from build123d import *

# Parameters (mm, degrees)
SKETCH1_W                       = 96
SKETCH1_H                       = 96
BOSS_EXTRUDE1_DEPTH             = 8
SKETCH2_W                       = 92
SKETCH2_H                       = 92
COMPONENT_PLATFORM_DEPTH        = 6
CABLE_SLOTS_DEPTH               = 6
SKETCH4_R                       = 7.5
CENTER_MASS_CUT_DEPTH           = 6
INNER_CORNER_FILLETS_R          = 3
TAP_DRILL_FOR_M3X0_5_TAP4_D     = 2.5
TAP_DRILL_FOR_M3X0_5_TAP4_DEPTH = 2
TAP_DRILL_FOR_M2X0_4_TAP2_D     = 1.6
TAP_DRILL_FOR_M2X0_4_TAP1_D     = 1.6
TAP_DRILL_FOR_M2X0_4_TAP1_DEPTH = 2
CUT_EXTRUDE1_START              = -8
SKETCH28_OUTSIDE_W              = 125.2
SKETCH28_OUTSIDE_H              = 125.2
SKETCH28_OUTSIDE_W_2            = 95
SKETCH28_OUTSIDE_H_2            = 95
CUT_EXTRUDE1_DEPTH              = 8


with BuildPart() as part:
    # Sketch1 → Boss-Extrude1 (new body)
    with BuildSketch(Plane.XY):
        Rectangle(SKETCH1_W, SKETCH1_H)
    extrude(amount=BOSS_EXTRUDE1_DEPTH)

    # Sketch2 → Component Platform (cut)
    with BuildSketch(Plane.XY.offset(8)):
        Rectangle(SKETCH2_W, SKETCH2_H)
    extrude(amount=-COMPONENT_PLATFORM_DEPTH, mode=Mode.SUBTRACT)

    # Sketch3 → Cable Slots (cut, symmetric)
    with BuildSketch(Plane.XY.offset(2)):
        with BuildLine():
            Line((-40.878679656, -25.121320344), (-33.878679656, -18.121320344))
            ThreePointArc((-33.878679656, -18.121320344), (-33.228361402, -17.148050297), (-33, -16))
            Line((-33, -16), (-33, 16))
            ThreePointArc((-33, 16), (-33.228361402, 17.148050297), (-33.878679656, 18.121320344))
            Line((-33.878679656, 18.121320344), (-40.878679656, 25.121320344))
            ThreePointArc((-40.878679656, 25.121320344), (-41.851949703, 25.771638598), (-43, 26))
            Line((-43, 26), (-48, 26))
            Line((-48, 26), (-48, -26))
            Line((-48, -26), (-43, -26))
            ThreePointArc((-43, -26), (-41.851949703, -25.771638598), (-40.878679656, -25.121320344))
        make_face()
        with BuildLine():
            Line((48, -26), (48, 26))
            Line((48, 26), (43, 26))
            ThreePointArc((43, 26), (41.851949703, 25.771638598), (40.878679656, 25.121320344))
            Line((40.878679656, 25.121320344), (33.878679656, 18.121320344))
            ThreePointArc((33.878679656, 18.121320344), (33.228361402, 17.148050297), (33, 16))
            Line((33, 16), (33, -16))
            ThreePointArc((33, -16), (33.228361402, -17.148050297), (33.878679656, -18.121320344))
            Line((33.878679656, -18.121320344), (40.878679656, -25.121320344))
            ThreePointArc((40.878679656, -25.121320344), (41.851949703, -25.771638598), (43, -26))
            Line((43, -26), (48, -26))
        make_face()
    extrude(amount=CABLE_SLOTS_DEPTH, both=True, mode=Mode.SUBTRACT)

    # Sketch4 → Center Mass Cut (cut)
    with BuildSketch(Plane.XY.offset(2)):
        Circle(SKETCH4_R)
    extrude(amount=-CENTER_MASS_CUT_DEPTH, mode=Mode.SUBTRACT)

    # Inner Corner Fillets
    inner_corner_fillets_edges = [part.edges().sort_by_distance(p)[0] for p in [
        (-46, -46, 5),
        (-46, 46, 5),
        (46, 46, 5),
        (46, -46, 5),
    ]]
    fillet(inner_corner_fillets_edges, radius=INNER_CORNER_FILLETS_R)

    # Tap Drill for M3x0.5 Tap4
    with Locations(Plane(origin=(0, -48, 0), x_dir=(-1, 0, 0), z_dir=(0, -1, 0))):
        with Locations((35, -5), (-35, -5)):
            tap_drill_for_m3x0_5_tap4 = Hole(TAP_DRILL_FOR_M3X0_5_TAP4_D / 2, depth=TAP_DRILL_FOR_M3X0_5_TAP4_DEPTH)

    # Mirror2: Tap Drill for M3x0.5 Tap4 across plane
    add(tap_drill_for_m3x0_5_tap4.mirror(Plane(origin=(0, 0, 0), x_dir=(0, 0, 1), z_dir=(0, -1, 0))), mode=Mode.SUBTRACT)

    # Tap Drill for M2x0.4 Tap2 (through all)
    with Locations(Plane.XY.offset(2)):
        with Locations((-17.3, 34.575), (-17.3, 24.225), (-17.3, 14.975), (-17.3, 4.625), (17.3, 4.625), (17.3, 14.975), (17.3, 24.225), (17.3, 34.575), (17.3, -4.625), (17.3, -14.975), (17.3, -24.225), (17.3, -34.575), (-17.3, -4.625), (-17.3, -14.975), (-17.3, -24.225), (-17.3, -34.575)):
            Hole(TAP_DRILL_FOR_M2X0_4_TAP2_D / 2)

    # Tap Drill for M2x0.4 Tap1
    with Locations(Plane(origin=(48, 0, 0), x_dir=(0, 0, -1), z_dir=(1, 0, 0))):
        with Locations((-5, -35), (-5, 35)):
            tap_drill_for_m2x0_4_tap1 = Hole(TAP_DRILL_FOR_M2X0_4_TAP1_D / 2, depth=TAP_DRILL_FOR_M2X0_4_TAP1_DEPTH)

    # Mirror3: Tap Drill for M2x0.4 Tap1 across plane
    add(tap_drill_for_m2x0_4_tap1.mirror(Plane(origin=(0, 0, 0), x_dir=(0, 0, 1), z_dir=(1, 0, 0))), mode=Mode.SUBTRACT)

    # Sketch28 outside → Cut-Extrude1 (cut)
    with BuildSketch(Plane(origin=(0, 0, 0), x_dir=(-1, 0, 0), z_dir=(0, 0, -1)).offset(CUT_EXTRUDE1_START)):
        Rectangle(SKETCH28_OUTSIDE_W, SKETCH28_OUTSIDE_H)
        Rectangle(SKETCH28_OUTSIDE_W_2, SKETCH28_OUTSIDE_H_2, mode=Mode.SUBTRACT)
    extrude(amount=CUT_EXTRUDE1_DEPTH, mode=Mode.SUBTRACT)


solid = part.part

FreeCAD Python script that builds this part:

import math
import FreeCAD as App
import Part
import Sketcher


def edges_at(feature, points):
    """Names of the edges that pass closest to the given points."""
    edges = feature.Shape.Edges
    near = lambda p: min(range(len(edges)), key=lambda i: edges[i].distToShape(Part.Vertex(*p))[0])
    return sorted({f"Edge{near(p) + 1}" for p in points})

doc = App.newDocument("Part")
params = doc.addObject("Spreadsheet::Sheet", "Params")
for row, (alias, value) in enumerate([
    ("sketch1_width", "96 mm"),
    ("pad1_length", "8 mm"),
    ("sketch2_width", "92 mm"),
    ("pocket1_length", "6 mm"),
    ("sketch3_radius", "3 mm"),
    ("sketch3_width", "5 mm"),
    ("sketch3_height", "32 mm"),
    ("sketch3_height2", "52 mm"),
    ("pocket2_length", "12 mm"),
    ("sketch4_diameter", "15 mm"),
    ("pocket3_length", "6 mm"),
    ("fillet_radius", "3 mm"),
    ("sketch5_diameter", "2.5 mm"),
    ("hole_diameter", "2.5 mm"),
    ("hole_depth", "2 mm"),
    ("sketch6_diameter", "1.6 mm"),
    ("hole2_diameter", "1.6 mm"),
    ("sketch7_diameter", "1.6 mm"),
    ("hole3_diameter", "1.6 mm"),
    ("hole3_depth", "2 mm"),
    ("sketch8_width", "95 mm"),
    ("sketch8_width2", "125.2 mm"),
    ("pocket4_length", "8 mm"),
], start=1):
    params.set(f"A{row}", alias)
    params.set(f"B{row}", "=" + value)
    params.setAlias(f"B{row}", alias)

body = doc.addObject("PartDesign::Body", "Body")

sketch1 = body.newObject("Sketcher::SketchObject", "Sketch")
sketch1.AttachmentSupport = (doc.getObject("XY_Plane"), [""])
sketch1.MapMode = "FlatFace"
sketch1.addGeometry([
    Part.LineSegment(App.Vector(-48, 48, 0), App.Vector(-48, -48, 0)),
    Part.LineSegment(App.Vector(-48, -48, 0), App.Vector(48, -48, 0)),
    Part.LineSegment(App.Vector(48, -48, 0), App.Vector(48, 48, 0)),
    Part.LineSegment(App.Vector(48, 48, 0), App.Vector(-48, 48, 0)),
], False)
sketch1.addConstraint([
    Sketcher.Constraint("Coincident", 0, 2, 1, 1),
    Sketcher.Constraint("Coincident", 1, 2, 2, 1),
    Sketcher.Constraint("Coincident", 2, 2, 3, 1),
    Sketcher.Constraint("Coincident", 3, 2, 0, 1),
    Sketcher.Constraint("Vertical", 0),
    Sketcher.Constraint("Horizontal", 1),
    Sketcher.Constraint("Vertical", 2),
    Sketcher.Constraint("Horizontal", 3),
    Sketcher.Constraint("Symmetric", 0, 2, 2, 2, -1, 1),
    Sketcher.Constraint("Equal", 3, 0),
    Sketcher.Constraint("DistanceX", 1, 1, 1, 2, 96.0),
])
sketch1.setExpression("Constraints[10]", "Params.sketch1_width")
pad1 = body.newObject("PartDesign::Pad", "Pad")
pad1.Profile = sketch1
pad1.setExpression("Length", "Params.pad1_length")

sketch2 = body.newObject("Sketcher::SketchObject", "Sketch001")
sketch2.AttachmentSupport = (doc.getObject("XY_Plane"), [""])
sketch2.MapMode = "FlatFace"
sketch2.AttachmentOffset = App.Placement(App.Vector(0, 0, 8), App.Rotation())
sketch2.addGeometry([
    Part.LineSegment(App.Vector(-46, 46, 0), App.Vector(-46, -46, 0)),
    Part.LineSegment(App.Vector(-46, -46, 0), App.Vector(46, -46, 0)),
    Part.LineSegment(App.Vector(46, -46, 0), App.Vector(46, 46, 0)),
    Part.LineSegment(App.Vector(46, 46, 0), App.Vector(-46, 46, 0)),
], False)
sketch2.addConstraint([
    Sketcher.Constraint("Coincident", 0, 2, 1, 1),
    Sketcher.Constraint("Coincident", 1, 2, 2, 1),
    Sketcher.Constraint("Coincident", 2, 2, 3, 1),
    Sketcher.Constraint("Coincident", 3, 2, 0, 1),
    Sketcher.Constraint("Vertical", 0),
    Sketcher.Constraint("Horizontal", 1),
    Sketcher.Constraint("Vertical", 2),
    Sketcher.Constraint("Horizontal", 3),
    Sketcher.Constraint("Symmetric", 0, 2, 2, 2, -1, 1),
    Sketcher.Constraint("Equal", 3, 0),
    Sketcher.Constraint("DistanceX", 1, 1, 1, 2, 92.0),
])
sketch2.setExpression("Constraints[10]", "Params.sketch2_width")
pocket1 = body.newObject("PartDesign::Pocket", "Pocket")
pocket1.Profile = sketch2
pocket1.setExpression("Length", "Params.pocket1_length")

sketch3 = body.newObject("Sketcher::SketchObject", "Sketch002")
sketch3.AttachmentSupport = (doc.getObject("XY_Plane"), [""])
sketch3.MapMode = "FlatFace"
sketch3.AttachmentOffset = App.Placement(App.Vector(0, 0, 2), App.Rotation())
sketch3.addGeometry([
    Part.LineSegment(App.Vector(-40.9, -25.1, 0), App.Vector(-33.9, -18.1, 0)),
    Part.ArcOfCircle(Part.Circle(App.Vector(-36, -16, 0), App.Vector(0, 0, 1), 3), math.radians(-45), math.radians(0)),
    Part.LineSegment(App.Vector(-33, -16, 0), App.Vector(-33, 16, 0)),
    Part.ArcOfCircle(Part.Circle(App.Vector(-36, 16, 0), App.Vector(0, 0, 1), 3), math.radians(0), math.radians(45)),
    Part.LineSegment(App.Vector(-33.9, 18.1, 0), App.Vector(-40.9, 25.1, 0)),
    Part.ArcOfCircle(Part.Circle(App.Vector(-43, 23, 0), App.Vector(0, 0, 1), 3), math.radians(45), math.radians(90)),
    Part.LineSegment(App.Vector(-43, 26, 0), App.Vector(-48, 26, 0)),
    Part.LineSegment(App.Vector(-48, 26, 0), App.Vector(-48, -26, 0)),
    Part.LineSegment(App.Vector(-48, -26, 0), App.Vector(-43, -26, 0)),
    Part.ArcOfCircle(Part.Circle(App.Vector(-43, -23, 0), App.Vector(0, 0, 1), 3), math.radians(-90), math.radians(-45)),
    Part.LineSegment(App.Vector(48, -26, 0), App.Vector(48, 26, 0)),
    Part.LineSegment(App.Vector(48, 26, 0), App.Vector(43, 26, 0)),
    Part.ArcOfCircle(Part.Circle(App.Vector(43, 23, 0), App.Vector(0, 0, 1), 3), math.radians(90), math.radians(135)),
    Part.LineSegment(App.Vector(40.9, 25.1, 0), App.Vector(33.9, 18.1, 0)),
    Part.ArcOfCircle(Part.Circle(App.Vector(36, 16, 0), App.Vector(0, 0, 1), 3), math.radians(135), math.radians(180)),
    Part.LineSegment(App.Vector(33, 16, 0), App.Vector(33, -16, 0)),
    Part.ArcOfCircle(Part.Circle(App.Vector(36, -16, 0), App.Vector(0, 0, 1), 3), math.radians(180), math.radians(225)),
    Part.LineSegment(App.Vector(33.9, -18.1, 0), App.Vector(40.9, -25.1, 0)),
    Part.ArcOfCircle(Part.Circle(App.Vector(43, -23, 0), App.Vector(0, 0, 1), 3), math.radians(-135), math.radians(-90)),
    Part.LineSegment(App.Vector(43, -26, 0), App.Vector(48, -26, 0)),
], False)
sketch3.addConstraint([
    Sketcher.Constraint("Tangent", 0, 2, 1, 1),
    Sketcher.Constraint("Tangent", 1, 2, 2, 1),
    Sketcher.Constraint("Tangent", 2, 2, 3, 1),
    Sketcher.Constraint("Tangent", 3, 2, 4, 1),
    Sketcher.Constraint("Tangent", 4, 2, 5, 1),
    Sketcher.Constraint("Tangent", 5, 2, 6, 1),
    Sketcher.Constraint("Coincident", 6, 2, 7, 1),
    Sketcher.Constraint("Coincident", 7, 2, 8, 1),
    Sketcher.Constraint("Tangent", 8, 2, 9, 1),
    Sketcher.Constraint("Tangent", 9, 2, 0, 1),
    Sketcher.Constraint("Coincident", 10, 2, 11, 1),
    Sketcher.Constraint("Tangent", 11, 2, 12, 1),
    Sketcher.Constraint("Tangent", 12, 2, 13, 1),
    Sketcher.Constraint("Tangent", 13, 2, 14, 1),
    Sketcher.Constraint("Tangent", 14, 2, 15, 1),
    Sketcher.Constraint("Tangent", 15, 2, 16, 1),
    Sketcher.Constraint("Tangent", 16, 2, 17, 1),
    Sketcher.Constraint("Tangent", 17, 2, 18, 1),
    Sketcher.Constraint("Tangent", 18, 2, 19, 1),
    Sketcher.Constraint("Coincident", 19, 2, 10, 1),
    Sketcher.Constraint("Vertical", 2),
    Sketcher.Constraint("Horizontal", 6),
    Sketcher.Constraint("Vertical", 7),
    Sketcher.Constraint("Horizontal", 8),
    Sketcher.Constraint("Vertical", 10),
    Sketcher.Constraint("Horizontal", 11),
    Sketcher.Constraint("Vertical", 15),
    Sketcher.Constraint("Horizontal", 19),
    Sketcher.Constraint("Equal", 1, 3),
    Sketcher.Constraint("Equal", 3, 5),
    Sketcher.Constraint("Equal", 5, 9),
    Sketcher.Constraint("Equal", 9, 12),
    Sketcher.Constraint("Equal", 12, 14),
    Sketcher.Constraint("Equal", 14, 16),
    Sketcher.Constraint("Equal", 16, 18),
    Sketcher.Constraint("Symmetric", 9, 3, 12, 3, -1, 1),
    Sketcher.Constraint("Symmetric", 1, 3, 14, 3, -1, 1),
    Sketcher.Constraint("Symmetric", 5, 3, 18, 3, -1, 1),
    Sketcher.Constraint("Symmetric", 5, 3, 12, 3, -2),
    Sketcher.Constraint("Perpendicular", 0, 4),
    Sketcher.Constraint("Perpendicular", 13, 17),
    Sketcher.Constraint("Horizontal", 3, 3, 14, 3),
    Sketcher.Constraint("Equal", 8, 11),
    Sketcher.Constraint("Radius", 1, 3.0),
    Sketcher.Constraint("DistanceX", 6, 2, 6, 1, 5.0),
    Sketcher.Constraint("DistanceY", 2, 1, 2, 2, 32.0),
    Sketcher.Constraint("DistanceY", 7, 2, 7, 1, 52.0),
    Sketcher.Constraint("DistanceX", 1, 3, -1, 1, 36.0),
])
sketch3.setExpression("Constraints[43]", "Params.sketch3_radius")
sketch3.setExpression("Constraints[44]", "Params.sketch3_width")
sketch3.setExpression("Constraints[45]", "Params.sketch3_height")
sketch3.setExpression("Constraints[46]", "Params.sketch3_height2")
pocket2 = body.newObject("PartDesign::Pocket", "Pocket001")
pocket2.Profile = sketch3
pocket2.setExpression("Length", "Params.pocket2_length")
pocket2.Midplane = True

sketch4 = body.newObject("Sketcher::SketchObject", "Sketch003")
sketch4.AttachmentSupport = (doc.getObject("XY_Plane"), [""])
sketch4.MapMode = "FlatFace"
sketch4.AttachmentOffset = App.Placement(App.Vector(0, 0, 2), App.Rotation())
sketch4.addGeometry(Part.Circle(App.Vector(0, 0, 0), App.Vector(0, 0, 1), 8), False)
sketch4.addConstraint([
    Sketcher.Constraint("Coincident", 0, 3, -1, 1),
    Sketcher.Constraint("Diameter", 0, 15.0),
])
sketch4.setExpression("Constraints[1]", "Params.sketch4_diameter")
pocket3 = body.newObject("PartDesign::Pocket", "Pocket002")
pocket3.Profile = sketch4
pocket3.setExpression("Length", "Params.pocket3_length")
doc.recompute()

fillet = body.newObject("PartDesign::Fillet", "Fillet")
fillet.Base = (pocket3, edges_at(pocket3, [
    (-46, -46, 5),
    (-46, 46, 5),
    (46, 46, 5),
    (46, -46, 5),
]))
fillet.setExpression("Radius", "Params.fillet_radius")

sketch5 = body.newObject("Sketcher::SketchObject", "Sketch004")
sketch5.AttachmentSupport = (doc.getObject("XZ_Plane"), [""])
sketch5.MapMode = "FlatFace"
sketch5.AttachmentOffset = App.Placement(App.Vector(0, 0, 48), App.Rotation())
sketch5.addGeometry([
    Part.Circle(App.Vector(-35, 5, 0), App.Vector(0, 0, 1), 1.2),
    Part.Circle(App.Vector(35, 5, 0), App.Vector(0, 0, 1), 1.2),
], False)
sketch5.addConstraint([
    Sketcher.Constraint("Equal", 0, 1),
    Sketcher.Constraint("Symmetric", 0, 3, 1, 3, -2),
    Sketcher.Constraint("Diameter", 0, 2.5),
    Sketcher.Constraint("DistanceX", 0, 3, -1, 1, 35.0),
    Sketcher.Constraint("DistanceY", -1, 1, 0, 3, 5.0),
])
sketch5.setExpression("Constraints[2]", "Params.sketch5_diameter")
doc.recompute()
hole = body.newObject("PartDesign::Hole", "Hole")
hole.Profile = sketch5
hole.ThreadType = "None"
hole.setExpression("Diameter", "Params.hole_diameter")
hole.DepthType = "Dimension"
hole.setExpression("Depth", "Params.hole_depth")
hole.DrillPoint = "Flat"
doc.recompute()

mirrored = body.newObject("PartDesign::Mirrored", "Mirrored")
mirrored.Originals = [hole]
mirrored.MirrorPlane = (doc.getObject("XZ_Plane"), [""])
body.Tip = mirrored

sketch6 = body.newObject("Sketcher::SketchObject", "Sketch005")
sketch6.AttachmentSupport = (doc.getObject("XY_Plane"), [""])
sketch6.MapMode = "FlatFace"
sketch6.AttachmentOffset = App.Placement(App.Vector(0, 0, 2), App.Rotation())
sketch6.addGeometry([
    Part.Circle(App.Vector(-17.3, 34.6, 0), App.Vector(0, 0, 1), 0.8),
    Part.Circle(App.Vector(-17.3, 24.2, 0), App.Vector(0, 0, 1), 0.8),
    Part.Circle(App.Vector(-17.3, 15, 0), App.Vector(0, 0, 1), 0.8),
    Part.Circle(App.Vector(-17.3, 4.6, 0), App.Vector(0, 0, 1), 0.8),
    Part.Circle(App.Vector(17.3, 4.6, 0), App.Vector(0, 0, 1), 0.8),
    Part.Circle(App.Vector(17.3, 15, 0), App.Vector(0, 0, 1), 0.8),
    Part.Circle(App.Vector(17.3, 24.2, 0), App.Vector(0, 0, 1), 0.8),
    Part.Circle(App.Vector(17.3, 34.6, 0), App.Vector(0, 0, 1), 0.8),
    Part.Circle(App.Vector(17.3, -4.6, 0), App.Vector(0, 0, 1), 0.8),
    Part.Circle(App.Vector(17.3, -15, 0), App.Vector(0, 0, 1), 0.8),
    Part.Circle(App.Vector(17.3, -24.2, 0), App.Vector(0, 0, 1), 0.8),
    Part.Circle(App.Vector(17.3, -34.6, 0), App.Vector(0, 0, 1), 0.8),
    Part.Circle(App.Vector(-17.3, -4.6, 0), App.Vector(0, 0, 1), 0.8),
    Part.Circle(App.Vector(-17.3, -15, 0), App.Vector(0, 0, 1), 0.8),
    Part.Circle(App.Vector(-17.3, -24.2, 0), App.Vector(0, 0, 1), 0.8),
    Part.Circle(App.Vector(-17.3, -34.6, 0), App.Vector(0, 0, 1), 0.8),
], False)
sketch6.addConstraint([
    Sketcher.Constraint("Equal", 0, 1),
    Sketcher.Constraint("Equal", 1, 2),
    Sketcher.Constraint("Equal", 2, 3),
    Sketcher.Constraint("Equal", 3, 4),
    Sketcher.Constraint("Equal", 4, 5),
    Sketcher.Constraint("Equal", 5, 6),
    Sketcher.Constraint("Equal", 6, 7),
    Sketcher.Constraint("Equal", 7, 8),
    Sketcher.Constraint("Equal", 8, 9),
    Sketcher.Constraint("Equal", 9, 10),
    Sketcher.Constraint("Equal", 10, 11),
    Sketcher.Constraint("Equal", 11, 12),
    Sketcher.Constraint("Equal", 12, 13),
    Sketcher.Constraint("Equal", 13, 14),
    Sketcher.Constraint("Equal", 14, 15),
    Sketcher.Constraint("Symmetric", 3, 3, 8, 3, -1, 1),
    Sketcher.Constraint("Symmetric", 2, 3, 9, 3, -1, 1),
    Sketcher.Constraint("Symmetric", 1, 3, 10, 3, -1, 1),
    Sketcher.Constraint("Symmetric", 0, 3, 11, 3, -1, 1),
    Sketcher.Constraint("Symmetric", 4, 3, 12, 3, -1, 1),
    Sketcher.Constraint("Symmetric", 5, 3, 13, 3, -1, 1),
    Sketcher.Constraint("Symmetric", 6, 3, 14, 3, -1, 1),
    Sketcher.Constraint("Symmetric", 7, 3, 15, 3, -1, 1),
    Sketcher.Constraint("Symmetric", 3, 3, 4, 3, -2),
    Sketcher.Constraint("Symmetric", 2, 3, 5, 3, -2),
    Sketcher.Constraint("Symmetric", 1, 3, 6, 3, -2),
    Sketcher.Constraint("Symmetric", 0, 3, 7, 3, -2),
    Sketcher.Constraint("Vertical", 0, 3, 1, 3),
    Sketcher.Constraint("Vertical", 1, 3, 2, 3),
    Sketcher.Constraint("Vertical", 2, 3, 3, 3),
    Sketcher.Constraint("Diameter", 0, 1.6),
    Sketcher.Constraint("DistanceX", 0, 3, -1, 1, 17.3),
    Sketcher.Constraint("DistanceY", 2, 3, 0, 3, 19.6),
    Sketcher.Constraint("DistanceY", 3, 3, 1, 3, 19.6),
    Sketcher.Constraint("DistanceY", 8, 3, 5, 3, 19.6),
    Sketcher.Constraint("DistanceY", 1, 3, 0, 3, 10.35),
])
sketch6.setExpression("Constraints[30]", "Params.sketch6_diameter")
doc.recompute()
hole2 = body.newObject("PartDesign::Hole", "Hole001")
hole2.Profile = sketch6
hole2.ThreadType = "None"
hole2.setExpression("Diameter", "Params.hole2_diameter")
hole2.DepthType = "ThroughAll"

sketch7 = body.newObject("Sketcher::SketchObject", "Sketch006")
sketch7.AttachmentSupport = (doc.getObject("YZ_Plane"), [""])
sketch7.MapMode = "FlatFace"
sketch7.AttachmentOffset = App.Placement(App.Vector(0, 0, 48), App.Rotation())
sketch7.addGeometry([
    Part.Circle(App.Vector(-35, 5, 0), App.Vector(0, 0, 1), 0.8),
    Part.Circle(App.Vector(35, 5, 0), App.Vector(0, 0, 1), 0.8),
], False)
sketch7.addConstraint([
    Sketcher.Constraint("Equal", 0, 1),
    Sketcher.Constraint("Symmetric", 0, 3, 1, 3, -2),
    Sketcher.Constraint("Diameter", 0, 1.6),
    Sketcher.Constraint("DistanceX", 0, 3, -1, 1, 35.0),
    Sketcher.Constraint("DistanceY", -1, 1, 0, 3, 5.0),
])
sketch7.setExpression("Constraints[2]", "Params.sketch7_diameter")
doc.recompute()
hole3 = body.newObject("PartDesign::Hole", "Hole002")
hole3.Profile = sketch7
hole3.ThreadType = "None"
hole3.setExpression("Diameter", "Params.hole3_diameter")
hole3.DepthType = "Dimension"
hole3.setExpression("Depth", "Params.hole3_depth")
hole3.DrillPoint = "Flat"
doc.recompute()

mirrored2 = body.newObject("PartDesign::Mirrored", "Mirrored001")
mirrored2.Originals = [hole3]
mirrored2.MirrorPlane = (doc.getObject("YZ_Plane"), [""])
body.Tip = mirrored2

sketch8 = body.newObject("Sketcher::SketchObject", "Sketch007")
sketch8.AttachmentSupport = (doc.getObject("XY_Plane"), [""])
sketch8.MapMode = "FlatFace"
sketch8.AttachmentOffset = App.Placement(App.Vector(0, 0, 8), App.Rotation())
sketch8.addGeometry([
    Part.LineSegment(App.Vector(63, 63, 0), App.Vector(63, -63, 0)),
    Part.LineSegment(App.Vector(63, -63, 0), App.Vector(-63, -63, 0)),
    Part.LineSegment(App.Vector(-63, -63, 0), App.Vector(-63, 63, 0)),
    Part.LineSegment(App.Vector(-63, 63, 0), App.Vector(63, 63, 0)),
    Part.LineSegment(App.Vector(-48, -48, 0), App.Vector(48, -48, 0)),
    Part.LineSegment(App.Vector(48, -48, 0), App.Vector(48, 48, 0)),
    Part.LineSegment(App.Vector(48, 48, 0), App.Vector(-48, 48, 0)),
    Part.LineSegment(App.Vector(-48, 48, 0), App.Vector(-48, -48, 0)),
], False)
sketch8.addConstraint([
    Sketcher.Constraint("Coincident", 0, 2, 1, 1),
    Sketcher.Constraint("Coincident", 1, 2, 2, 1),
    Sketcher.Constraint("Coincident", 2, 2, 3, 1),
    Sketcher.Constraint("Coincident", 3, 2, 0, 1),
    Sketcher.Constraint("Coincident", 4, 2, 5, 1),
    Sketcher.Constraint("Coincident", 5, 2, 6, 1),
    Sketcher.Constraint("Coincident", 6, 2, 7, 1),
    Sketcher.Constraint("Coincident", 7, 2, 4, 1),
    Sketcher.Constraint("Vertical", 0),
    Sketcher.Constraint("Horizontal", 1),
    Sketcher.Constraint("Vertical", 2),
    Sketcher.Constraint("Horizontal", 3),
    Sketcher.Constraint("Horizontal", 4),
    Sketcher.Constraint("Vertical", 5),
    Sketcher.Constraint("Horizontal", 6),
    Sketcher.Constraint("Vertical", 7),
    Sketcher.Constraint("Symmetric", 0, 2, 2, 2, -1, 1),
    Sketcher.Constraint("Symmetric", 4, 2, 6, 2, -1, 1),
    Sketcher.Constraint("Equal", 3, 0),
    Sketcher.Constraint("Equal", 6, 5),
    Sketcher.Constraint("DistanceX", 4, 1, 4, 2, 95.0),
    Sketcher.Constraint("DistanceX", 1, 2, 1, 1, 125.2),
])
sketch8.setExpression("Constraints[20]", "Params.sketch8_width")
sketch8.setExpression("Constraints[21]", "Params.sketch8_width2")
pocket4 = body.newObject("PartDesign::Pocket", "Pocket003")
pocket4.Profile = sketch8
pocket4.setExpression("Length", "Params.pocket4_length")

doc.recompute()
